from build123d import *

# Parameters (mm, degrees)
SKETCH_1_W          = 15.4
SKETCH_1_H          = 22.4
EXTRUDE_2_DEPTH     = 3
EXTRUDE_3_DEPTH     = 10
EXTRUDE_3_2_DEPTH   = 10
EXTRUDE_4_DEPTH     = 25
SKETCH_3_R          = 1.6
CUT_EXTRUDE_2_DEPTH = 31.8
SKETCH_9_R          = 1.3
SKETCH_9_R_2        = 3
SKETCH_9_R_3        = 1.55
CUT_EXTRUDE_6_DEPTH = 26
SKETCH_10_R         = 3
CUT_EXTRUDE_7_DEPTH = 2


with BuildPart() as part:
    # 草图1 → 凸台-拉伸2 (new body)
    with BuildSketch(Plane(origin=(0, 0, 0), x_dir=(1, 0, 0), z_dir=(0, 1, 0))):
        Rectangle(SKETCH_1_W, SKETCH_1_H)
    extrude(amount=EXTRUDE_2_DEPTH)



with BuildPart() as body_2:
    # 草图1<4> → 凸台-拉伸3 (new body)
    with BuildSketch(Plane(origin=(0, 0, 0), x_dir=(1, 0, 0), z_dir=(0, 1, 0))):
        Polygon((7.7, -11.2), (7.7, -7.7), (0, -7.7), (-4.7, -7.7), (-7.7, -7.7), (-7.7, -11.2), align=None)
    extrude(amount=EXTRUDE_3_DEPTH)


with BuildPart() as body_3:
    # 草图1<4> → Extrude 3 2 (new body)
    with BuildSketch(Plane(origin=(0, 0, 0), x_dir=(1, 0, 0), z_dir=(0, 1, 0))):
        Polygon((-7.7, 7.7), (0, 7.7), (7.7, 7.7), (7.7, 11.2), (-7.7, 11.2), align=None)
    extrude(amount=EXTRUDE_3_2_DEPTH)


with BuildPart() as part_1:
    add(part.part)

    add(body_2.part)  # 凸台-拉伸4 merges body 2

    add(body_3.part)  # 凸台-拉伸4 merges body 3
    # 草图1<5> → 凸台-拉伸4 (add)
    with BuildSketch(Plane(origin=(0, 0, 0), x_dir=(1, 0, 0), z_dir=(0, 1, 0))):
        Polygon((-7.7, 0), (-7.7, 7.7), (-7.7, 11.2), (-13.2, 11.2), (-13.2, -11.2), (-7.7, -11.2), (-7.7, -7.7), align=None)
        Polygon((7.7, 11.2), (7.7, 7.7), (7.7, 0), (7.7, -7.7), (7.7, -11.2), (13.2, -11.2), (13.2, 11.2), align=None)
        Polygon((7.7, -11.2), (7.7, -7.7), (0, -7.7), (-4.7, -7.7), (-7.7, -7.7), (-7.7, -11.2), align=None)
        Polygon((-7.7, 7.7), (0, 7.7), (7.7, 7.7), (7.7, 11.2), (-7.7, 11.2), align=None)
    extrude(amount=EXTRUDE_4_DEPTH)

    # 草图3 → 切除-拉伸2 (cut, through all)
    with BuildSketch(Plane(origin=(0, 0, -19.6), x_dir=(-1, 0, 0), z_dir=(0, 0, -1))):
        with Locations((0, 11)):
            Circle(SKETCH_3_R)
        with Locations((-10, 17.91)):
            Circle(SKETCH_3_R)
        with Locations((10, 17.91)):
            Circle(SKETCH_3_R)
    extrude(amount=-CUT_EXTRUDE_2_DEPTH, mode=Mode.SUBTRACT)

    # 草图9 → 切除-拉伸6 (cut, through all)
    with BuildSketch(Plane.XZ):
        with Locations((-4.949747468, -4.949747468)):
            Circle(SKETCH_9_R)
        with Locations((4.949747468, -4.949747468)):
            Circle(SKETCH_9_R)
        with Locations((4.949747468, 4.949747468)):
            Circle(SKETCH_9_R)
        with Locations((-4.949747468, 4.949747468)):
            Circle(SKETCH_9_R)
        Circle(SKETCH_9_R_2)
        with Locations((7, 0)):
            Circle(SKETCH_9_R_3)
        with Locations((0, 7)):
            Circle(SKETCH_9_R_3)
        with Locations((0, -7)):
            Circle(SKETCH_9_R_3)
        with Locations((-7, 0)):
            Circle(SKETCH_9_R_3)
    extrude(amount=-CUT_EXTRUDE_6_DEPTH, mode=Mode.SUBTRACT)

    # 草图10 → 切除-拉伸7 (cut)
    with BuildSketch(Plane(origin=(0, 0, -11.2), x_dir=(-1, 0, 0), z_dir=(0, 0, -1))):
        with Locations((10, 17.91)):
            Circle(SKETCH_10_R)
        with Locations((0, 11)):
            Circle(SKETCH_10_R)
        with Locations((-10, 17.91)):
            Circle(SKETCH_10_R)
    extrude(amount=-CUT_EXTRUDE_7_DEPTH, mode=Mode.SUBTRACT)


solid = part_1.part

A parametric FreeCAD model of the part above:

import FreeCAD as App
import Part
import Sketcher

V = App.Vector

doc = App.newDocument("Part")
body = doc.addObject("PartDesign::Body", "Body")

# Sketch on XZ plane
sketch1 = body.newObject("Sketcher::SketchObject", "Sketch")
sketch1.AttachmentSupport = (doc.getObject("XZ_Plane"), [""])
sketch1.MapMode = "FlatFace"
sketch1.addGeometry(Part.LineSegment(V(-8, -11, 0), V(-8, 11, 0)), False)
sketch1.addGeometry(Part.LineSegment(V(-8, 11, 0), V(8, 11, 0)), False)
sketch1.addGeometry(Part.LineSegment(V(8, 11, 0), V(8, -11, 0)), False)
sketch1.addGeometry(Part.LineSegment(V(8, -11, 0), V(-8, -11, 0)), False)
sketch1.addConstraint(Sketcher.Constraint("Coincident", 0, 2, 1, 1))
sketch1.addConstraint(Sketcher.Constraint("Coincident", 1, 2, 2, 1))
sketch1.addConstraint(Sketcher.Constraint("Coincident", 2, 2, 3, 1))
sketch1.addConstraint(Sketcher.Constraint("Coincident", 3, 2, 0, 1))
sketch1.addConstraint(Sketcher.Constraint("Vertical", 0))
sketch1.addConstraint(Sketcher.Constraint("Horizontal", 1))
sketch1.addConstraint(Sketcher.Constraint("Vertical", 2))
sketch1.addConstraint(Sketcher.Constraint("Horizontal", 3))
sketch1.addConstraint(Sketcher.Constraint("Symmetric", 0, 2, 2, 2, -1, 1))
sketch1.addConstraint(Sketcher.Constraint("DistanceX", 1, 1, 1, 2, 15.4))
sketch1.addConstraint(Sketcher.Constraint("DistanceY", 0, 1, 0, 2, 22.4))
pad1 = body.newObject("PartDesign::Pad", "Pad")
pad1.Profile = sketch1
pad1.Length = 3
pad1.Reversed = True
body2 = doc.addObject("PartDesign::Body", "Body001")

# Sketch on XZ plane
sketch2 = body2.newObject("Sketcher::SketchObject", "Sketch001")
sketch2.AttachmentSupport = (doc.getObject("XZ_Plane001"), [""])
sketch2.MapMode = "FlatFace"
sketch2.addGeometry(Part.LineSegment(V(7.7, 11.2, 0), V(7.7, 7.7, 0)), False)
sketch2.addGeometry(Part.LineSegment(V(7.7, 7.7, 0), V(-7.7, 7.7, 0)), False)
sketch2.addGeometry(Part.LineSegment(V(-7.7, 7.7, 0), V(-7.7, 11.2, 0)), False)
sketch2.addGeometry(Part.LineSegment(V(-7.7, 11.2, 0), V(7.7, 11.2, 0)), False)
sketch2.addConstraint(Sketcher.Constraint("Coincident", 0, 2, 1, 1))
sketch2.addConstraint(Sketcher.Constraint("Coincident", 1, 2, 2, 1))
sketch2.addConstraint(Sketcher.Constraint("Coincident", 2, 2, 3, 1))
sketch2.addConstraint(Sketcher.Constraint("Coincident", 3, 2, 0, 1))
sketch2.addConstraint(Sketcher.Constraint("Vertical", 0))
sketch2.addConstraint(Sketcher.Constraint("Horizontal", 1))
sketch2.addConstraint(Sketcher.Constraint("Vertical", 2))
sketch2.addConstraint(Sketcher.Constraint("Horizontal", 3))
sketch2.addConstraint(Sketcher.Constraint("DistanceX", 1, 2, 1, 1, 15.4))
sketch2.addConstraint(Sketcher.Constraint("DistanceY", 0, 2, 0, 1, 3.5))
sketch2.addConstraint(Sketcher.Constraint("DistanceX", -1, 1, 0, 2, 7.7))
sketch2.addConstraint(Sketcher.Constraint("DistanceY", -1, 1, 0, 2, 7.7))
pad2 = body2.newObject("PartDesign::Pad", "Pad001")
pad2.Profile = sketch2
pad2.Length = 10
pad2.Reversed = True
body3 = doc.addObject("PartDesign::Body", "Body002")

# Sketch on XZ plane
sketch3 = body3.newObject("Sketcher::SketchObject", "Sketch002")
sketch3.AttachmentSupport = (doc.getObject("XZ_Plane002"), [""])
sketch3.MapMode = "FlatFace"
sketch3.addGeometry(Part.LineSegment(V(-7.7, -7.7, 0), V(7.7, -7.7, 0)), False)
sketch3.addGeometry(Part.LineSegment(V(7.7, -7.7, 0), V(7.7, -11.2, 0)), False)
sketch3.addGeometry(Part.LineSegment(V(7.7, -11.2, 0), V(-7.7, -11.2, 0)), False)
sketch3.addGeometry(Part.LineSegment(V(-7.7, -11.2, 0), V(-7.7, -7.7, 0)), False)
sketch3.addConstraint(Sketcher.Constraint("Coincident", 0, 2, 1, 1))
sketch3.addConstraint(Sketcher.Constraint("Coincident", 1, 2, 2, 1))
sketch3.addConstraint(Sketcher.Constraint("Coincident", 2, 2, 3, 1))
sketch3.addConstraint(Sketcher.Constraint("Coincident", 3, 2, 0, 1))
sketch3.addConstraint(Sketcher.Constraint("Horizontal", 0))
sketch3.addConstraint(Sketcher.Constraint("Vertical", 1))
sketch3.addConstraint(Sketcher.Constraint("Horizontal", 2))
sketch3.addConstraint(Sketcher.Constraint("Vertical", 3))
sketch3.addConstraint(Sketcher.Constraint("DistanceX", 0, 1, 0, 2, 15.4))
sketch3.addConstraint(Sketcher.Constraint("DistanceY", 1, 2, 1, 1, 3.5))
sketch3.addConstraint(Sketcher.Constraint("DistanceX", -1, 1, 0, 2, 7.7))
sketch3.addConstraint(Sketcher.Constraint("DistanceY", 0, 2, -1, 1, 7.7))
pad3 = body3.newObject("PartDesign::Pad", "Pad002")
pad3.Profile = sketch3
pad3.Length = 10
pad3.Reversed = True
doc.recompute()

boolean = body.newObject("PartDesign::Boolean", "Boolean")
boolean.Type = "Fuse"
boolean.addObjects([body2])
doc.recompute()

boolean2 = body.newObject("PartDesign::Boolean", "Boolean001")
boolean2.Type = "Fuse"
boolean2.addObjects([body3])

# Sketch on XZ plane
sketch4 = body.newObject("Sketcher::SketchObject", "Sketch003")
sketch4.AttachmentSupport = (doc.getObject("XZ_Plane"), [""])
sketch4.MapMode = "FlatFace"
sketch4.addGeometry(Part.LineSegment(V(13, -11, 0), V(-13, -11, 0)), False)
sketch4.addGeometry(Part.LineSegment(V(-13, -11, 0), V(-13, 11, 0)), False)
sketch4.addGeometry(Part.LineSegment(V(-13, 11, 0), V(13, 11, 0)), False)
sketch4.addGeometry(Part.LineSegment(V(13, 11, 0), V(13, -11, 0)), False)
sketch4.addGeometry(Part.LineSegment(V(8, 8, 0), V(-8, 8, 0)), False)
sketch4.addGeometry(Part.LineSegment(V(-8, 8, 0), V(-8, -8, 0)), False)
sketch4.addGeometry(Part.LineSegment(V(-8, -8, 0), V(8, -8, 0)), False)
sketch4.addGeometry(Part.LineSegment(V(8, -8, 0), V(8, 8, 0)), False)
sketch4.addConstraint(Sketcher.Constraint("Coincident", 0, 2, 1, 1))
sketch4.addConstraint(Sketcher.Constraint("Coincident", 1, 2, 2, 1))
sketch4.addConstraint(Sketcher.Constraint("Coincident", 2, 2, 3, 1))
sketch4.addConstraint(Sketcher.Constraint("Coincident", 3, 2, 0, 1))
sketch4.addConstraint(Sketcher.Constraint("Coincident", 4, 2, 5, 1))
sketch4.addConstraint(Sketcher.Constraint("Coincident", 5, 2, 6, 1))
sketch4.addConstraint(Sketcher.Constraint("Coincident", 6, 2, 7, 1))
sketch4.addConstraint(Sketcher.Constraint("Coincident", 7, 2, 4, 1))
sketch4.addConstraint(Sketcher.Constraint("Horizontal", 0))
sketch4.addConstraint(Sketcher.Constraint("Vertical", 1))
sketch4.addConstraint(Sketcher.Constraint("Horizontal", 2))
sketch4.addConstraint(Sketcher.Constraint("Vertical", 3))
sketch4.addConstraint(Sketcher.Constraint("Horizontal", 4))
sketch4.addConstraint(Sketcher.Constraint("Vertical", 5))
sketch4.addConstraint(Sketcher.Constraint("Horizontal", 6))
sketch4.addConstraint(Sketcher.Constraint("Vertical", 7))
sketch4.addConstraint(Sketcher.Constraint("Symmetric", 0, 2, 2, 2, -1, 1))
sketch4.addConstraint(Sketcher.Constraint("Symmetric", 4, 2, 6, 2, -1, 1))
sketch4.addConstraint(Sketcher.Constraint("Equal", 6, 5))
sketch4.addConstraint(Sketcher.Constraint("DistanceX", 0, 2, 0, 1, 26.4))
sketch4.addConstraint(Sketcher.Constraint("DistanceX", 4, 2, 4, 1, 15.4))
sketch4.addConstraint(Sketcher.Constraint("DistanceY", 1, 1, 1, 2, 22.4))
pad4 = body.newObject("PartDesign::Pad", "Pad003")
pad4.Profile = sketch4
pad4.Length = 25
pad4.Reversed = True

# Sketch on XY plane
sketch5 = body.newObject("Sketcher::SketchObject", "Sketch004")
sketch5.AttachmentSupport = (doc.getObject("XY_Plane"), [""])
sketch5.MapMode = "FlatFace"
sketch5.AttachmentOffset = App.Placement(V(0, 0, -19.6), App.Rotation())
sketch5.addGeometry(Part.Circle(V(0, 11, 0), V(0, 0, 1), 1.6), False)
sketch5.addGeometry(Part.Circle(V(10, 17.9, 0), V(0, 0, 1), 1.6), False)
sketch5.addGeometry(Part.Circle(V(-10, 17.9, 0), V(0, 0, 1), 1.6), False)
sketch5.addConstraint(Sketcher.Constraint("Equal", 0, 1))
sketch5.addConstraint(Sketcher.Constraint("Equal", 1, 2))
sketch5.addConstraint(Sketcher.Constraint("Symmetric", 1, 3, 2, 3, -2))
sketch5.addConstraint(Sketcher.Constraint("PointOnObject", 0, 3, -2))
sketch5.addConstraint(Sketcher.Constraint("Diameter", 0, 3.2))
sketch5.addConstraint(Sketcher.Constraint("DistanceY", -1, 1, 0, 3, 11.0))
sketch5.addConstraint(Sketcher.Constraint("DistanceX", -1, 1, 1, 3, 10.0))
sketch5.addConstraint(Sketcher.Constraint("DistanceY", -1, 1, 1, 3, 17.91))
pocket1 = body.newObject("PartDesign::Pocket", "Pocket")
pocket1.Profile = sketch5
pocket1.Type = "ThroughAll"
pocket1.Reversed = True

# Sketch on XZ plane
sketch6 = body.newObject("Sketcher::SketchObject", "Sketch005")
sketch6.AttachmentSupport = (doc.getObject("XZ_Plane"), [""])
sketch6.MapMode = "FlatFace"
sketch6.addGeometry(Part.Circle(V(-4.9, -4.9, 0), V(0, 0, 1), 1.3), False)
sketch6.addGeometry(Part.Circle(V(4.9, -4.9, 0), V(0, 0, 1), 1.3), False)
sketch6.addGeometry(Part.Circle(V(4.9, 4.9, 0), V(0, 0, 1), 1.3), False)
sketch6.addGeometry(Part.Circle(V(-4.9, 4.9, 0), V(0, 0, 1), 1.3), False)
sketch6.addGeometry(Part.Circle(V(0, 0, 0), V(0, 0, 1), 3), False)
sketch6.addGeometry(Part.Circle(V(7, 0, 0), V(0, 0, 1), 1.6), False)
sketch6.addGeometry(Part.Circle(V(0, 7, 0), V(0, 0, 1), 1.6), False)
sketch6.addGeometry(Part.Circle(V(0, -7, 0), V(0, 0, 1), 1.6), False)
sketch6.addGeometry(Part.Circle(V(-7, 0, 0), V(0, 0, 1), 1.6), False)
sketch6.addConstraint(Sketcher.Constraint("Coincident", 4, 3, -1, 1))
sketch6.addConstraint(Sketcher.Constraint("Equal", 0, 1))
sketch6.addConstraint(Sketcher.Constraint("Equal", 1, 2))
sketch6.addConstraint(Sketcher.Constraint("Equal", 2, 3))
sketch6.addConstraint(Sketcher.Constraint("Equal", 5, 6))
sketch6.addConstraint(Sketcher.Constraint("Equal", 6, 7))
sketch6.addConstraint(Sketcher.Constraint("Equal", 7, 8))
sketch6.addConstraint(Sketcher.Constraint("Symmetric", 0, 3, 2, 3, -1, 1))
sketch6.addConstraint(Sketcher.Constraint("Symmetric", 1, 3, 3, 3, -1, 1))
sketch6.addConstraint(Sketcher.Constraint("Symmetric", 6, 3, 7, 3, -1, 1))
sketch6.addConstraint(Sketcher.Constraint("Symmetric", 5, 3, 8, 3, -1, 1))
sketch6.addConstraint(Sketcher.Constraint("Symmetric", 0, 3, 1, 3, -2))
sketch6.addConstraint(Sketcher.Constraint("PointOnObject", 5, 3, -1))
sketch6.addConstraint(Sketcher.Constraint("PointOnObject", 6, 3, -2))
sketch6.addConstraint(Sketcher.Constraint("Diameter", 4, 6.0))
sketch6.addConstraint(Sketcher.Constraint("Diameter", 0, 2.6))
sketch6.addConstraint(Sketcher.Constraint("Diameter", 5, 3.1))
sketch6.addConstraint(Sketcher.Constraint("DistanceX", -1, 1, 5, 3, 7.0))
sketch6.addConstraint(Sketcher.Constraint("DistanceY", -1, 1, 6, 3, 7.0))
sketch6.addConstraint(Sketcher.Constraint("DistanceX", 0, 3, -1, 1, 4.949747))
sketch6.addConstraint(Sketcher.Constraint("DistanceY", 0, 3, -1, 1, 4.949747))
pocket2 = body.newObject("PartDesign::Pocket", "Pocket001")
pocket2.Profile = sketch6
pocket2.Type = "ThroughAll"

# Sketch on XY plane
sketch7 = body.newObject("Sketcher::SketchObject", "Sketch006")
sketch7.AttachmentSupport = (doc.getObject("XY_Plane"), [""])
sketch7.MapMode = "FlatFace"
sketch7.AttachmentOffset = App.Placement(V(0, 0, -11.2), App.Rotation())
sketch7.addGeometry(Part.Circle(V(-10, 17.9, 0), V(0, 0, 1), 3), False)
sketch7.addGeometry(Part.Circle(V(0, 11, 0), V(0, 0, 1), 3), False)
sketch7.addGeometry(Part.Circle(V(10, 17.9, 0), V(0, 0, 1), 3), False)
sketch7.addConstraint(Sketcher.Constraint("Equal", 0, 1))
sketch7.addConstraint(Sketcher.Constraint("Equal", 1, 2))
sketch7.addConstraint(Sketcher.Constraint("Symmetric", 0, 3, 2, 3, -2))
sketch7.addConstraint(Sketcher.Constraint("PointOnObject", 1, 3, -2))
sketch7.addConstraint(Sketcher.Constraint("Diameter", 0, 6.0))
sketch7.addConstraint(Sketcher.Constraint("DistanceX", 0, 3, -1, 1, 10.0))
sketch7.addConstraint(Sketcher.Constraint("DistanceY", -1, 1, 1, 3, 11.0))
sketch7.addConstraint(Sketcher.Constraint("DistanceY", -1, 1, 0, 3, 17.91))
pocket3 = body.newObject("PartDesign::Pocket", "Pocket002")
pocket3.Profile = sketch7
pocket3.Length = 2
pocket3.Reversed = True

doc.recompute()
